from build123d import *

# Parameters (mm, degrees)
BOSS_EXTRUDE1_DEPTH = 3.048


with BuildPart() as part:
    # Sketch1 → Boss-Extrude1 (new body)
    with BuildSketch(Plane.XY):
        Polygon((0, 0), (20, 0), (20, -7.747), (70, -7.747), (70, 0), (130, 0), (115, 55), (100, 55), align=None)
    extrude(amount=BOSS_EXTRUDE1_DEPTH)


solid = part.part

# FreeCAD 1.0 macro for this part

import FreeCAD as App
import Part
import Sketcher

V = App.Vector


def add_polygon(sketch, points):
    """Adds a closed chain of lines whose ends are joined by coincident constraints."""
    first, n = sketch.GeometryCount, len(points)
    for a, b in zip(points, points[1:] + points[:1]):
        sketch.addGeometry(Part.LineSegment(App.Vector(*a, 0), App.Vector(*b, 0)), False)
    for i in range(n):
        sketch.addConstraint(Sketcher.Constraint("Coincident", first + i, 2, first + (i + 1) % n, 1))

doc = App.newDocument("Part")
body = doc.addObject("PartDesign::Body", "Body")

# Sketch on XY plane
sketch1 = body.newObject("Sketcher::SketchObject", "Sketch")
sketch1.AttachmentSupport = (doc.getObject("XY_Plane"), [""])
sketch1.MapMode = "FlatFace"
add_polygon(sketch1, [(0, 0), (20, 0), (20, -8), (70, -8), (70, 0), (130, 0), (115, 55), (100, 55)])  # lines 0-7
sketch1.addConstraint([
    Sketcher.Constraint("Horizontal", 0),
    Sketcher.Constraint("Vertical", 1),
    Sketcher.Constraint("Horizontal", 2),
    Sketcher.Constraint("Vertical", 3),
    Sketcher.Constraint("Horizontal", 4),
    Sketcher.Constraint("Horizontal", 6),
    Sketcher.Constraint("Coincident", 7, 2, -1, 1),
    Sketcher.Constraint("PointOnObject", 3, 2, -1),
    Sketcher.Constraint("DistanceX", 0, 1, 0, 2, 20.0),
    Sketcher.Constraint("DistanceX", 2, 1, 2, 2, 50.0),
    Sketcher.Constraint("DistanceX", 4, 1, 4, 2, 60.0),
    Sketcher.Constraint("DistanceX", 6, 2, 6, 1, 15.0),
    Sketcher.Constraint("DistanceX", -1, 1, 5, 2, 115.0),
    Sketcher.Constraint("DistanceY", -1, 1, 5, 2, 55.0),
    Sketcher.Constraint("DistanceY", 1, 2, 1, 1, 7.747),
])
pad1 = body.newObject("PartDesign::Pad", "Pad")
pad1.Profile = sketch1
pad1.Length = 3.048

doc.recompute()
